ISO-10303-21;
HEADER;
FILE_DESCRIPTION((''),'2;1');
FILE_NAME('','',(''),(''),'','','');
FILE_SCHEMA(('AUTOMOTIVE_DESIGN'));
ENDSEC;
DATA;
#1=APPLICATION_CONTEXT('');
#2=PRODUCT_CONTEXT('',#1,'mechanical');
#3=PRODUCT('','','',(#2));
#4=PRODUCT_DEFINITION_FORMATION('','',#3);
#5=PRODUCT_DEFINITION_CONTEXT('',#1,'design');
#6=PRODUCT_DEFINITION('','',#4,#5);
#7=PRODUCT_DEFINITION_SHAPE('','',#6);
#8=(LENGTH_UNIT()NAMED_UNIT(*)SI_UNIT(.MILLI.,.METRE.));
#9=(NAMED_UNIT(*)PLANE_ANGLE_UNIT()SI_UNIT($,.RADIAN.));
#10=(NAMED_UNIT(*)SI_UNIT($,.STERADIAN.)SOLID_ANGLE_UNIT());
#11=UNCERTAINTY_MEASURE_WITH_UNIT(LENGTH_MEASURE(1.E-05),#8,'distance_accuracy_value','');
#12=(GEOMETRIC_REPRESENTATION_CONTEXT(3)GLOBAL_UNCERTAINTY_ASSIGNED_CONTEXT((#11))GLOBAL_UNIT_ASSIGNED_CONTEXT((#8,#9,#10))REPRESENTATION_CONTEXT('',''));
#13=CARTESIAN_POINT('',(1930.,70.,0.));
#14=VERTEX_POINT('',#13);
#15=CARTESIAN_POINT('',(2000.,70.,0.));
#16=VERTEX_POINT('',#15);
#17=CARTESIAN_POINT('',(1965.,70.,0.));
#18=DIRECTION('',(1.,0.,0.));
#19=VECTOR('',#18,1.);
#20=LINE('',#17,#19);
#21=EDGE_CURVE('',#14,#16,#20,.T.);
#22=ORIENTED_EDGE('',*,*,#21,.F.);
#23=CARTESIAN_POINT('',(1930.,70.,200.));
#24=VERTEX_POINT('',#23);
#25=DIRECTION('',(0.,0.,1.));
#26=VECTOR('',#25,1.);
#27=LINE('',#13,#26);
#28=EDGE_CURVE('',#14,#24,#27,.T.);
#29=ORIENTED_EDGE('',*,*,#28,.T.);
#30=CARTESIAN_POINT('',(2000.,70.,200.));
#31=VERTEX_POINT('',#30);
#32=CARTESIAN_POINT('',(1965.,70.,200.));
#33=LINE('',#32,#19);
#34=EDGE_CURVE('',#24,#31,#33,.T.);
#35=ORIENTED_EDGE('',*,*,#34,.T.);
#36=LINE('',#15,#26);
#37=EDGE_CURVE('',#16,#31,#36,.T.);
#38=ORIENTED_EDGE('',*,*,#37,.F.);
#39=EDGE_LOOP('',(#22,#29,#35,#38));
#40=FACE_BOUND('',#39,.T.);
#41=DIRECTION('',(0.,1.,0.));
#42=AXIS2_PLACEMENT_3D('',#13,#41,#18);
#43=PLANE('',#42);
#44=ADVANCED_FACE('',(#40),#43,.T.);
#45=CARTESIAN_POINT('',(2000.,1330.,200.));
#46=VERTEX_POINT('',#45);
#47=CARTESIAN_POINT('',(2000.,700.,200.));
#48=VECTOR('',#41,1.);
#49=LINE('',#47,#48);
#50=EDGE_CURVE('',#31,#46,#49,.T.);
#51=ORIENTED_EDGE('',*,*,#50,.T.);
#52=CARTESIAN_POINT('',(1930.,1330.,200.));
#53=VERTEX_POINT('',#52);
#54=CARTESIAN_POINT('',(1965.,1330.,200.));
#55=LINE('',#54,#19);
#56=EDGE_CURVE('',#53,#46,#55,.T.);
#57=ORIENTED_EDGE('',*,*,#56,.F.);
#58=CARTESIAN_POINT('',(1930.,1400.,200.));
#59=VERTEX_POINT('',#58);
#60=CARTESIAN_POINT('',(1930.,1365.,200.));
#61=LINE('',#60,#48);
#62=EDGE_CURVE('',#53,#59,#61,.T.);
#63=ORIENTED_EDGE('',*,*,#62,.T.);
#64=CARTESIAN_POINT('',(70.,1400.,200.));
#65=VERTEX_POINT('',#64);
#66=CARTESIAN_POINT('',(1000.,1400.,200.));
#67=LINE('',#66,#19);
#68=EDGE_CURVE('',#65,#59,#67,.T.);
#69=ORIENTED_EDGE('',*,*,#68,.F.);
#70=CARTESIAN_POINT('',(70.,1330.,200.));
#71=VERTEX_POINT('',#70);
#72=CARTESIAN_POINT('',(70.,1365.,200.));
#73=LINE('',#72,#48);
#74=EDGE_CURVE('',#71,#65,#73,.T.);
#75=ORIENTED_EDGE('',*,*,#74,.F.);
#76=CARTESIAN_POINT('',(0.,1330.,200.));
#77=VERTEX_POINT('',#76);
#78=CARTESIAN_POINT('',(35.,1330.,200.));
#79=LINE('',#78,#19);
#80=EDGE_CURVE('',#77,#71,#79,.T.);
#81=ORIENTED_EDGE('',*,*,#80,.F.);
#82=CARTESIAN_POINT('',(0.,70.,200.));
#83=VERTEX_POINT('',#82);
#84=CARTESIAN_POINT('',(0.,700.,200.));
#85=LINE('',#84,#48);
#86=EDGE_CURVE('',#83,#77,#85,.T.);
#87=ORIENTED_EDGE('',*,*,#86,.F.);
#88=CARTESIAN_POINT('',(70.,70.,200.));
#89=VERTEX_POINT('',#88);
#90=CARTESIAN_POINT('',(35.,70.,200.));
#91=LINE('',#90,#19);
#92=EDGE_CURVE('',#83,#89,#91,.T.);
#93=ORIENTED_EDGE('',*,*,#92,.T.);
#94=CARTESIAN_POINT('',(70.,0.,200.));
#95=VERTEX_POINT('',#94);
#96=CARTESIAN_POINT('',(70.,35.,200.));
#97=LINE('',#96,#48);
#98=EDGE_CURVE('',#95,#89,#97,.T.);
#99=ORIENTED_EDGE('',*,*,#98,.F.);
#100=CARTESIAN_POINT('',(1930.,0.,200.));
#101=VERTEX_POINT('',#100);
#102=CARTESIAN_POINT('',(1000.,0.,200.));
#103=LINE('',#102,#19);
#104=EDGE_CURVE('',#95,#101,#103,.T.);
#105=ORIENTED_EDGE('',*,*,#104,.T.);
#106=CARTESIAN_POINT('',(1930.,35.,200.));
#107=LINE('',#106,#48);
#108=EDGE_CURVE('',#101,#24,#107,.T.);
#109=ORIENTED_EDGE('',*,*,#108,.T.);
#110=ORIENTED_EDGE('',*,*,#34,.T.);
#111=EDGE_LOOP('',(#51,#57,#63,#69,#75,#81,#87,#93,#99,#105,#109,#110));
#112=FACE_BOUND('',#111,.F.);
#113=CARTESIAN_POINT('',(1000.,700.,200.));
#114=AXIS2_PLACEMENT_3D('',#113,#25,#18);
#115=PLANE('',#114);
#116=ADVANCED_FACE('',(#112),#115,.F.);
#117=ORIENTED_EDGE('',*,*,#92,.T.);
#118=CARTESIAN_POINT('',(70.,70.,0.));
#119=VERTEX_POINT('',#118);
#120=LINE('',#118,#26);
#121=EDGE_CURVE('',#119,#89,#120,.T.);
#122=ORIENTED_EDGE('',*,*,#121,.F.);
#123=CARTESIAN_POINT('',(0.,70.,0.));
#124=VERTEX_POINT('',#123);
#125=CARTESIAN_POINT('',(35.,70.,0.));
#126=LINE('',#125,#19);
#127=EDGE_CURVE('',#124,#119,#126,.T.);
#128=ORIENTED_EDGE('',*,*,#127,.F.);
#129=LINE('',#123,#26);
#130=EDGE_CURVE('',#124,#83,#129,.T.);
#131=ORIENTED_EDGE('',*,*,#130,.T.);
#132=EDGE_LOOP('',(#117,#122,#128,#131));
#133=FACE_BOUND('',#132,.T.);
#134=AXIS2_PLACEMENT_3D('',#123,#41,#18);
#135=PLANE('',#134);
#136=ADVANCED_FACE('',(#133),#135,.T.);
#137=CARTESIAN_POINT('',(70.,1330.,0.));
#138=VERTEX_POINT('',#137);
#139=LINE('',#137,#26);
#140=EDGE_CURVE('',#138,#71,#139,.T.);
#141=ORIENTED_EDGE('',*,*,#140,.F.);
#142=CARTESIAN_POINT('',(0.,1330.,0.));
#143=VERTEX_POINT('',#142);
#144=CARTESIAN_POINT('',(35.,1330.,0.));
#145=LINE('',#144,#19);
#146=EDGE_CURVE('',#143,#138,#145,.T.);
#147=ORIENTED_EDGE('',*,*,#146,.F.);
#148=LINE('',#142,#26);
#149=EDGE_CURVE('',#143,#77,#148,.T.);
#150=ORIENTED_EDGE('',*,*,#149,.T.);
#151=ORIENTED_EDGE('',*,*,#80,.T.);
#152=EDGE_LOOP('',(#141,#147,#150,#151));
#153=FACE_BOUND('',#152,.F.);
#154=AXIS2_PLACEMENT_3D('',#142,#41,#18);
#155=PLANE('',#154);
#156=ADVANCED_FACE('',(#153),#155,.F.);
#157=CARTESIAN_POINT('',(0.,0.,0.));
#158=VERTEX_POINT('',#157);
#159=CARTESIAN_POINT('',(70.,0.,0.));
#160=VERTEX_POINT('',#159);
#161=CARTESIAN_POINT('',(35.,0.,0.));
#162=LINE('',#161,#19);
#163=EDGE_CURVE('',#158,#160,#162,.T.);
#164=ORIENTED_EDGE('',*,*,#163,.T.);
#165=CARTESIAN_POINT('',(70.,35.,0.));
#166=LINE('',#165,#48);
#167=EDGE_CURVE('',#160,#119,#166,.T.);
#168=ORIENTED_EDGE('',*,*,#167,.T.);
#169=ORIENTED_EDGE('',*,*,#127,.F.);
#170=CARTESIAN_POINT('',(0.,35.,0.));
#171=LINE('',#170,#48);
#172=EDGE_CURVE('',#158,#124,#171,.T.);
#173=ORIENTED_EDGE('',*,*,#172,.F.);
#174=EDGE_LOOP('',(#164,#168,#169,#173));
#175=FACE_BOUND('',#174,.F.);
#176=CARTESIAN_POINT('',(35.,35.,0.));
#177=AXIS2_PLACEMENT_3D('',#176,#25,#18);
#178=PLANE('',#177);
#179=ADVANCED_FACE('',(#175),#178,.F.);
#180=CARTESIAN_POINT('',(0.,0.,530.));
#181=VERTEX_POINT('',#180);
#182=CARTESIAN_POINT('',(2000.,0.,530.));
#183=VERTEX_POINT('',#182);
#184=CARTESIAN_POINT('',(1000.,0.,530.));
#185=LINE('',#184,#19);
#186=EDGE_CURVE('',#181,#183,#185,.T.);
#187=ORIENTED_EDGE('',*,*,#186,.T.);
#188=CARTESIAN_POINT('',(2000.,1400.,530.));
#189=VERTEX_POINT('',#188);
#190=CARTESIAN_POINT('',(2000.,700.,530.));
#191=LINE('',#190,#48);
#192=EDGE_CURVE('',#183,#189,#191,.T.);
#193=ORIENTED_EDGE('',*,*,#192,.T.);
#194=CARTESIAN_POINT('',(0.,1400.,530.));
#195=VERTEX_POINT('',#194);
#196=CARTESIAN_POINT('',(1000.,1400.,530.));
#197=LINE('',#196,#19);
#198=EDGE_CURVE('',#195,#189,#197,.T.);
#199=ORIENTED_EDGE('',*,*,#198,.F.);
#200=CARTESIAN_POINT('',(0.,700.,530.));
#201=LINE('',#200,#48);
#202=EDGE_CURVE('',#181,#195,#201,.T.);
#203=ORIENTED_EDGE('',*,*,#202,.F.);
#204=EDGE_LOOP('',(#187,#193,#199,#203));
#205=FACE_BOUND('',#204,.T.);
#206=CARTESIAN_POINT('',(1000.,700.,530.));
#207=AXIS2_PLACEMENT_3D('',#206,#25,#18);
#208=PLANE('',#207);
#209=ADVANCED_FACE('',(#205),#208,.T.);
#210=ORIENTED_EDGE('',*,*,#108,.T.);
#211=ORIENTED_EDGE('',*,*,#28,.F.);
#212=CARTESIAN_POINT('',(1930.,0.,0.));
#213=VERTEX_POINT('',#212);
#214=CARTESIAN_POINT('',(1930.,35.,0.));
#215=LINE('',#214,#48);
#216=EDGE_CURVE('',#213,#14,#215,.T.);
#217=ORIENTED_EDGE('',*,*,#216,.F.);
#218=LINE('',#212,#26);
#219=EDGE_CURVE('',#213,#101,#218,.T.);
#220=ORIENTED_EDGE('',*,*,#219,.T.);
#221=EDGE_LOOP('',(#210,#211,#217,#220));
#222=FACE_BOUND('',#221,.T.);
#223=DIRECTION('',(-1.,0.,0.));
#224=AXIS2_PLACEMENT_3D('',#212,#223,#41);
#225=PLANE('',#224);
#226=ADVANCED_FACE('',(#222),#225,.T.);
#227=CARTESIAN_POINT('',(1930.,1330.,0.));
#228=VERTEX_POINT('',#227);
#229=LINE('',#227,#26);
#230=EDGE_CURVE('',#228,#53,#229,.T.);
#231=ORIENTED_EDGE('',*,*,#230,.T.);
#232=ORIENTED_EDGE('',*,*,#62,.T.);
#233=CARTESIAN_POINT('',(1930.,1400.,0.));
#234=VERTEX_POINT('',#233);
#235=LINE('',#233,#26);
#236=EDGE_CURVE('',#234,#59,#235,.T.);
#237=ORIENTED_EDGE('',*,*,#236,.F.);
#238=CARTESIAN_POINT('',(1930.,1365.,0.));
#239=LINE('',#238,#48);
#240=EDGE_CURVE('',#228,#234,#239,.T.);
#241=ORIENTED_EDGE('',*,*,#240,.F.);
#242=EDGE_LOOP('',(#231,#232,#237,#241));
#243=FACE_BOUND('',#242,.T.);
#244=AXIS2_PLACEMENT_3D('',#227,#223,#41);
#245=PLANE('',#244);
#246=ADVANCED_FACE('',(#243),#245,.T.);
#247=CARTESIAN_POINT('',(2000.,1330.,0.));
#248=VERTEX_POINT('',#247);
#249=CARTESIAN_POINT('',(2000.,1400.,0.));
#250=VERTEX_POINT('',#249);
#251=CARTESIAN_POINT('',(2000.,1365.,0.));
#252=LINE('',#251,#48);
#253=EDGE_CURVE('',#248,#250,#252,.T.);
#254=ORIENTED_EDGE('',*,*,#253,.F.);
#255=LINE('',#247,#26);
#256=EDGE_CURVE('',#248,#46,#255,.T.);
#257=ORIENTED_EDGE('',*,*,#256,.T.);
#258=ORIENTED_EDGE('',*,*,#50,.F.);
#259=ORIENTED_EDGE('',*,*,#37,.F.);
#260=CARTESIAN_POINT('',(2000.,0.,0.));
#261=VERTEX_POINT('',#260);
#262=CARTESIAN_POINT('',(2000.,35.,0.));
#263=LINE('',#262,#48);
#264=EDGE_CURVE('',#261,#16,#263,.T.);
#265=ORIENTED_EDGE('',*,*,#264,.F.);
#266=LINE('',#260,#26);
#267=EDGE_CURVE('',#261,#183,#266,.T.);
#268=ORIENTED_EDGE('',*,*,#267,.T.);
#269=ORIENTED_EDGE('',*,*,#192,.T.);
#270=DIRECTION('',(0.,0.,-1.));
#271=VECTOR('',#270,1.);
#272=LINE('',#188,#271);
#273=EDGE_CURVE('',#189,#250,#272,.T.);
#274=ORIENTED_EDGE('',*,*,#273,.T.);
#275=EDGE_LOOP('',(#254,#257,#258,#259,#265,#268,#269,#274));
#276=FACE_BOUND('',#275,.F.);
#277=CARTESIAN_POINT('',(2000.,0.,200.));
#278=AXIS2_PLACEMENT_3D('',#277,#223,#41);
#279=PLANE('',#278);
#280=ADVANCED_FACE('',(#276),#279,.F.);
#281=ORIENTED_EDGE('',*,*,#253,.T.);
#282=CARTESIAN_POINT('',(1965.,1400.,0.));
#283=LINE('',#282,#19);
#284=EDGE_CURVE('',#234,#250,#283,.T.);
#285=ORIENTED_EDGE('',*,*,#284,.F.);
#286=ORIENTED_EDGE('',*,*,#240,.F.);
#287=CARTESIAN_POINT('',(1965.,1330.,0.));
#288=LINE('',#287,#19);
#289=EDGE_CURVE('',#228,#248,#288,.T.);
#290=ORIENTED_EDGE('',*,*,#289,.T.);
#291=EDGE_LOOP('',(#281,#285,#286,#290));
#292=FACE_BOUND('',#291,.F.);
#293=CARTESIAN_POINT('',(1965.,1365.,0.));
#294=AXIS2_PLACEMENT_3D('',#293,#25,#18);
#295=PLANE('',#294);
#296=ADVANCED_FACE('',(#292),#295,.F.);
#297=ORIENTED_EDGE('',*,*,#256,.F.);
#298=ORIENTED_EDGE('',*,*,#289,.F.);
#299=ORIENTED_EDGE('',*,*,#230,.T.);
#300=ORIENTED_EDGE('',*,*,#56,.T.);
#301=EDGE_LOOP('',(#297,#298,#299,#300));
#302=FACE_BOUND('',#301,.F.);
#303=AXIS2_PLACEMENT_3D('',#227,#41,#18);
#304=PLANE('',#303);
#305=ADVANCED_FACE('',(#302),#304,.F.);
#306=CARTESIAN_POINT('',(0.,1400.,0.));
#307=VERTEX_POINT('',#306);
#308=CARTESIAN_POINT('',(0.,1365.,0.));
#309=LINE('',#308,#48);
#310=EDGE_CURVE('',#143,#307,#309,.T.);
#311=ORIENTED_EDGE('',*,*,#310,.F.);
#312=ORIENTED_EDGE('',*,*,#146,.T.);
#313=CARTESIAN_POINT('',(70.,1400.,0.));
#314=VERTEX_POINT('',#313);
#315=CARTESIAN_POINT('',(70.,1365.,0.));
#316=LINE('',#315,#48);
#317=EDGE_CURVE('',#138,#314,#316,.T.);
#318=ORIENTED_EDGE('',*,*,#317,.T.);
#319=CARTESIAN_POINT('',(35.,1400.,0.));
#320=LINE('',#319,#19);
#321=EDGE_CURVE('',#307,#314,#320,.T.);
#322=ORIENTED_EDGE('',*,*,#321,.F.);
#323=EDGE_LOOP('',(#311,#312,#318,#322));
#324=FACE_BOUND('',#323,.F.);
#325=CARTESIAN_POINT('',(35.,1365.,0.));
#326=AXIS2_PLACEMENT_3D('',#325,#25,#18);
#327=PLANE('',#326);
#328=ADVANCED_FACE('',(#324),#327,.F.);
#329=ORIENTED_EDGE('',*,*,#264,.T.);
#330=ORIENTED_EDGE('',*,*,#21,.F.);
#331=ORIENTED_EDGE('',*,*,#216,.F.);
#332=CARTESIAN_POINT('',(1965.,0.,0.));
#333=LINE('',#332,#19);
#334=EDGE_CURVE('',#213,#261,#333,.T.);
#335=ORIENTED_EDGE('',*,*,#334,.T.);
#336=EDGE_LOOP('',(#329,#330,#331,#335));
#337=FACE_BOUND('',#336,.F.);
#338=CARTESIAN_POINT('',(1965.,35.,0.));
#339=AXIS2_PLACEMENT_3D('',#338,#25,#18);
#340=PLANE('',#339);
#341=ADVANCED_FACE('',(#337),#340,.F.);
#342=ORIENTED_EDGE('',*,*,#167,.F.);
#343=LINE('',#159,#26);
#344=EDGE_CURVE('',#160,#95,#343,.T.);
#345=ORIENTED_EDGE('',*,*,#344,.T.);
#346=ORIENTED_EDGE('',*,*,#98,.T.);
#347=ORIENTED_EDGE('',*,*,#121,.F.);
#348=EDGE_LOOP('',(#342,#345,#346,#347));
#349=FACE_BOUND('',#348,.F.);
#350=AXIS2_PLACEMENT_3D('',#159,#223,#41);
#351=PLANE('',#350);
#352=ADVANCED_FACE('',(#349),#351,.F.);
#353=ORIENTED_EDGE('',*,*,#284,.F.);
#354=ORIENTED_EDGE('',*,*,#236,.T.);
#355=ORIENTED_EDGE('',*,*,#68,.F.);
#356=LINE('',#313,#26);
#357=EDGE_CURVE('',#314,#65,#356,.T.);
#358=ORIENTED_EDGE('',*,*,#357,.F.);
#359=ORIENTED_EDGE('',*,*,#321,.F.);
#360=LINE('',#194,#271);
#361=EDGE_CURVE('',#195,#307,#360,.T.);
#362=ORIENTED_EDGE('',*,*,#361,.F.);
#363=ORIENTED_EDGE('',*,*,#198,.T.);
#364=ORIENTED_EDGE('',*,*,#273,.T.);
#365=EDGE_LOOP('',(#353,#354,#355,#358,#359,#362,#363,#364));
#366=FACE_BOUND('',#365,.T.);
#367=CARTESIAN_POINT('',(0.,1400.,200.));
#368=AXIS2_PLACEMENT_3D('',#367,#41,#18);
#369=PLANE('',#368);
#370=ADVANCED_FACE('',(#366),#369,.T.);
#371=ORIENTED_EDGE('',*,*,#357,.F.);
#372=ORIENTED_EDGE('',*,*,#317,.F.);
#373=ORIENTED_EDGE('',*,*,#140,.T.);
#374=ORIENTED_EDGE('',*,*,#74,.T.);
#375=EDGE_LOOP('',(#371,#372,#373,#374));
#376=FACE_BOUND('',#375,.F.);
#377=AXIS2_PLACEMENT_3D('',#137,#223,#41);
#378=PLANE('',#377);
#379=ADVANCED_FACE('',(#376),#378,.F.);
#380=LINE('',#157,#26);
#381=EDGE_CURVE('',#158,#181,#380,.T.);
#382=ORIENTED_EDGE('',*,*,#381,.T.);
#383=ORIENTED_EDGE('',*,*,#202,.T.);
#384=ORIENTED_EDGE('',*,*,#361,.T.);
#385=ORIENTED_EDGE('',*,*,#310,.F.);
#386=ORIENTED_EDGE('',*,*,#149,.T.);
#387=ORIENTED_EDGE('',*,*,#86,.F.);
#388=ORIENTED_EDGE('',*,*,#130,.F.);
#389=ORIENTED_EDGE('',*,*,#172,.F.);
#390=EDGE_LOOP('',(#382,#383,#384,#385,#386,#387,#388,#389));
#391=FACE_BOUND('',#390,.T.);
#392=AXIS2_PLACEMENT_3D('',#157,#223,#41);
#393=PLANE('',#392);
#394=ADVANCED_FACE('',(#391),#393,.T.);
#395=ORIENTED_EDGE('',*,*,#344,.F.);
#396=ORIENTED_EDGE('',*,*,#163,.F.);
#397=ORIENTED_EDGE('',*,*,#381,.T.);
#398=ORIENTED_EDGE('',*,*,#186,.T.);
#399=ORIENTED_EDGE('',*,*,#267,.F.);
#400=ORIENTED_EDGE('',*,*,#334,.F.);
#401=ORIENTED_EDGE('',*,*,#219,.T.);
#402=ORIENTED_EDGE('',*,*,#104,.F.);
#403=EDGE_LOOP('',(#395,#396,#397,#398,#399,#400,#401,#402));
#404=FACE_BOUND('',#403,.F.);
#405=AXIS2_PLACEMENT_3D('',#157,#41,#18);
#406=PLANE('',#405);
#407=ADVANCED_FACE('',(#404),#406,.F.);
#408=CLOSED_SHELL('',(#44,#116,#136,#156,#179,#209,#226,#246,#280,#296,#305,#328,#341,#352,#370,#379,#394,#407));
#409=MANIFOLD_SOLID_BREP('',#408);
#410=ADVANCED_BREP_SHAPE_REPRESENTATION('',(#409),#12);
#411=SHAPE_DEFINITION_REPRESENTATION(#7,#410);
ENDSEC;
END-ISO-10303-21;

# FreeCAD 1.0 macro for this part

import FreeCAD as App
import Part
import Sketcher

V = App.Vector
Q = App.Units.Quantity


def add_polygon(sketch, points):
    """Adds a closed chain of lines whose ends are joined by coincident constraints."""
    first, n = sketch.GeometryCount, len(points)
    for a, b in zip(points, points[1:] + points[:1]):
        sketch.addGeometry(Part.LineSegment(App.Vector(*a, 0), App.Vector(*b, 0)), False)
    for i in range(n):
        sketch.addConstraint(Sketcher.Constraint("Coincident", first + i, 2, first + (i + 1) % n, 1))

doc = App.newDocument("Part")
body = doc.addObject("PartDesign::Body", "Body")

# Sketch on XY plane
sketch1 = doc.addObject("Sketcher::SketchObject", "Sketch")
body.addObject(sketch1)
sketch1.AttachmentSupport = (doc.XY_Plane, [""])
sketch1.MapMode = "FlatFace"
sketch1.AttachmentOffset = App.Placement(V(0, 0, 200), App.Rotation())
add_polygon(sketch1, [(0, 1400), (0, 0), (2000, 0), (2000, 1400)])  # lines 0-3
sketch1.addConstraint(Sketcher.Constraint("Vertical", 0))
sketch1.addConstraint(Sketcher.Constraint("Horizontal", 1))
sketch1.addConstraint(Sketcher.Constraint("Vertical", 2))
sketch1.addConstraint(Sketcher.Constraint("Horizontal", 3))
sketch1.addConstraint(Sketcher.Constraint("Coincident", 0, 2, -1, 1))
sketch1.addConstraint(Sketcher.Constraint("DistanceX", 1, 1, 1, 2, Q("2000 mm")))
sketch1.addConstraint(Sketcher.Constraint("DistanceY", 0, 2, 0, 1, Q("1400 mm")))
pad1 = doc.addObject("PartDesign::Pad", "Pad")
body.addObject(pad1)
pad1.Profile = sketch1
pad1.Length = 330

# Sketch on XY plane
sketch2 = doc.addObject("Sketcher::SketchObject", "Sketch001")
body.addObject(sketch2)
sketch2.AttachmentSupport = (doc.XY_Plane, [""])
sketch2.MapMode = "FlatFace"
add_polygon(sketch2, [(0, 70), (0, 0), (70, 0), (70, 70)])  # lines 0-3
add_polygon(sketch2, [(1930, 70), (1930, 0), (2000, 0), (2000, 70)])  # lines 4-7
add_polygon(sketch2, [(1930, 1400), (1930, 1330), (2000, 1330), (2000, 1400)])  # lines 8-11
add_polygon(sketch2, [(0, 1400), (0, 1330), (70, 1330), (70, 1400)])  # lines 12-15
sketch2.addConstraint(Sketcher.Constraint("Vertical", 0))
sketch2.addConstraint(Sketcher.Constraint("Horizontal", 1))
sketch2.addConstraint(Sketcher.Constraint("Vertical", 2))
sketch2.addConstraint(Sketcher.Constraint("Horizontal", 3))
sketch2.addConstraint(Sketcher.Constraint("Vertical", 4))
sketch2.addConstraint(Sketcher.Constraint("Horizontal", 5))
sketch2.addConstraint(Sketcher.Constraint("Vertical", 6))
sketch2.addConstraint(Sketcher.Constraint("Horizontal", 7))
sketch2.addConstraint(Sketcher.Constraint("Vertical", 8))
sketch2.addConstraint(Sketcher.Constraint("Horizontal", 9))
sketch2.addConstraint(Sketcher.Constraint("Vertical", 10))
sketch2.addConstraint(Sketcher.Constraint("Horizontal", 11))
sketch2.addConstraint(Sketcher.Constraint("Vertical", 12))
sketch2.addConstraint(Sketcher.Constraint("Horizontal", 13))
sketch2.addConstraint(Sketcher.Constraint("Vertical", 14))
sketch2.addConstraint(Sketcher.Constraint("Horizontal", 15))
sketch2.addConstraint(Sketcher.Constraint("Coincident", 0, 2, -1, 1))
sketch2.addConstraint(Sketcher.Constraint("PointOnObject", 4, 2, -1))
sketch2.addConstraint(Sketcher.Constraint("PointOnObject", 12, 2, -2))
sketch2.addConstraint(Sketcher.Constraint("Horizontal", 3, 2, 6, 2))
sketch2.addConstraint(Sketcher.Constraint("Horizontal", 9, 2, 12, 2))
sketch2.addConstraint(Sketcher.Constraint("Horizontal", 11, 2, 14, 2))
sketch2.addConstraint(Sketcher.Constraint("Vertical", 7, 2, 8, 2))
sketch2.addConstraint(Sketcher.Constraint("Vertical", 6, 2, 9, 2))
sketch2.addConstraint(Sketcher.Constraint("Vertical", 2, 2, 13, 2))
sketch2.addConstraint(Sketcher.Constraint("Equal", 3, 5))
sketch2.addConstraint(Sketcher.Constraint("Equal", 15, 0))
sketch2.addConstraint(Sketcher.Constraint("Equal", 6, 8))
sketch2.addConstraint(Sketcher.Constraint("DistanceX", 1, 1, 1, 2, Q("70 mm")))
sketch2.addConstraint(Sketcher.Constraint("DistanceX", -1, 1, 4, 2, Q("1930 mm")))
sketch2.addConstraint(Sketcher.Constraint("DistanceY", -1, 1, 8, 2, Q("1330 mm")))
pad2 = doc.addObject("PartDesign::Pad", "Pad001")
body.addObject(pad2)
pad2.Profile = sketch2
pad2.Type = "UpToLast"

doc.recompute()
